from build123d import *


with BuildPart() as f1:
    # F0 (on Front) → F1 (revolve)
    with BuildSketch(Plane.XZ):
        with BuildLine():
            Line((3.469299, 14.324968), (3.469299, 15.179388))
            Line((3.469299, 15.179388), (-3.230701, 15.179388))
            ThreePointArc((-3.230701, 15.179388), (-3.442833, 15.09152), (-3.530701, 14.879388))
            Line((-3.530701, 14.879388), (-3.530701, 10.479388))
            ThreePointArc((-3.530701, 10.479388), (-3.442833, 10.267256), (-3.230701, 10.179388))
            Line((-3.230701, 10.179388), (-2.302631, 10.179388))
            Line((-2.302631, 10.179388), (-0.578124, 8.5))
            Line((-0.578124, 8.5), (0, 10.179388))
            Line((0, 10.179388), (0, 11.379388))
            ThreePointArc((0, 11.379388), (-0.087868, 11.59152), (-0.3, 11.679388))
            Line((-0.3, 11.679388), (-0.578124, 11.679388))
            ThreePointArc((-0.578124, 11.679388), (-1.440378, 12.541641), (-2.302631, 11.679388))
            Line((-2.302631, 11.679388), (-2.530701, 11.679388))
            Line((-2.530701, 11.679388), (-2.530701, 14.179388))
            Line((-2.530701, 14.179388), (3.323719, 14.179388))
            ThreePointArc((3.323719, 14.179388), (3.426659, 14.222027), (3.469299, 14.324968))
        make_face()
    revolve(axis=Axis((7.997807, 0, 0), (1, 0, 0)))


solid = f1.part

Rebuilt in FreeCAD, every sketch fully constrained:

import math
import FreeCAD as App
import Part
import Sketcher

V = App.Vector

doc = App.newDocument("Part")
body = doc.addObject("PartDesign::Body", "Body")

# Sketch on XZ plane
sketch1 = body.newObject("Sketcher::SketchObject", "Sketch")
sketch1.AttachmentSupport = (doc.getObject("XZ_Plane"), [""])
sketch1.MapMode = "FlatFace"
sketch1.addGeometry(Part.LineSegment(V(3.469299, 14.324968, 0), V(3.469299, 15.179388, 0)), False)
sketch1.addGeometry(Part.LineSegment(V(3.469299, 15.179388, 0), V(-3.230701, 15.179388, 0)), False)
sketch1.addGeometry(Part.ArcOfCircle(Part.Circle(V(-3.230701, 14.879388, 0), V(0, 0, 1), 0.3), math.radians(90.000022), math.radians(179.999978)), False)
sketch1.addGeometry(Part.LineSegment(V(-3.530701, 14.879388, 0), V(-3.530701, 10.479388, 0)), False)
sketch1.addGeometry(Part.ArcOfCircle(Part.Circle(V(-3.230701, 10.479388, 0), V(0, 0, 1), 0.3), math.radians(-179.999978), math.radians(-90.000022)), False)
sketch1.addGeometry(Part.LineSegment(V(-3.230701, 10.179388, 0), V(-2.302631, 10.179388, 0)), False)
sketch1.addGeometry(Part.LineSegment(V(-2.302631, 10.179388, 0), V(-0.578124, 8.5, 0)), False)
sketch1.addGeometry(Part.LineSegment(V(-0.578124, 8.5, 0), V(0, 10.179388, 0)), False)
sketch1.addGeometry(Part.LineSegment(V(0, 10.179388, 0), V(0, 11.379388, 0)), False)
sketch1.addGeometry(Part.ArcOfCircle(Part.Circle(V(-0.3, 11.379388, 0), V(0, 0, 1), 0.3), math.radians(0.000022), math.radians(89.999978)), False)
sketch1.addGeometry(Part.LineSegment(V(-0.3, 11.679388, 0), V(-0.578124, 11.679388, 0)), False)
sketch1.addGeometry(Part.ArcOfCircle(Part.Circle(V(-1.440378, 11.679388, 0), V(0, 0, 1), 0.862254), math.radians(0.000033), math.radians(179.999967)), False)
sketch1.addGeometry(Part.LineSegment(V(-2.302631, 11.679388, 0), V(-2.530701, 11.679388, 0)), False)
sketch1.addGeometry(Part.LineSegment(V(-2.530701, 11.679388, 0), V(-2.530701, 14.179388, 0)), False)
sketch1.addGeometry(Part.LineSegment(V(-2.530701, 14.179388, 0), V(3.323719, 14.179388, 0)), False)
sketch1.addGeometry(Part.ArcOfCircle(Part.Circle(V(3.323719, 14.324968, 0), V(0, 0, 1), 0.14558), math.radians(-89.999859), math.radians(-0.000141)), False)
sketch1.addConstraint(Sketcher.Constraint("Coincident", 0, 2, 1, 1))
sketch1.addConstraint(Sketcher.Constraint("Tangent", 1, 2, 2, 1))
sketch1.addConstraint(Sketcher.Constraint("Tangent", 2, 2, 3, 1))
sketch1.addConstraint(Sketcher.Constraint("Tangent", 3, 2, 4, 1))
sketch1.addConstraint(Sketcher.Constraint("Tangent", 4, 2, 5, 1))
sketch1.addConstraint(Sketcher.Constraint("Coincident", 5, 2, 6, 1))
sketch1.addConstraint(Sketcher.Constraint("Coincident", 6, 2, 7, 1))
sketch1.addConstraint(Sketcher.Constraint("Coincident", 7, 2, 8, 1))
sketch1.addConstraint(Sketcher.Constraint("Tangent", 8, 2, 9, 1))
sketch1.addConstraint(Sketcher.Constraint("Tangent", 9, 2, 10, 1))
sketch1.addConstraint(Sketcher.Constraint("Coincident", 10, 2, 11, 1))
sketch1.addConstraint(Sketcher.Constraint("Coincident", 11, 2, 12, 1))
sketch1.addConstraint(Sketcher.Constraint("Coincident", 12, 2, 13, 1))
sketch1.addConstraint(Sketcher.Constraint("Coincident", 13, 2, 14, 1))
sketch1.addConstraint(Sketcher.Constraint("Coincident", 14, 2, 15, 1))
sketch1.addConstraint(Sketcher.Constraint("Coincident", 15, 2, 0, 1))
sketch1.addConstraint(Sketcher.Constraint("Vertical", 0))
sketch1.addConstraint(Sketcher.Constraint("Horizontal", 1))
sketch1.addConstraint(Sketcher.Constraint("Vertical", 3))
sketch1.addConstraint(Sketcher.Constraint("Horizontal", 5))
sketch1.addConstraint(Sketcher.Constraint("Vertical", 8))
sketch1.addConstraint(Sketcher.Constraint("Horizontal", 10))
sketch1.addConstraint(Sketcher.Constraint("Horizontal", 12))
sketch1.addConstraint(Sketcher.Constraint("Vertical", 13))
sketch1.addConstraint(Sketcher.Constraint("Horizontal", 14))
sketch1.addConstraint(Sketcher.Constraint("Equal", 2, 4))
sketch1.addConstraint(Sketcher.Constraint("Equal", 4, 9))
sketch1.addConstraint(Sketcher.Constraint("PointOnObject", 7, 2, -2))
sketch1.addConstraint(Sketcher.Constraint("Horizontal", 5, 2, 7, 2))
sketch1.addConstraint(Sketcher.Constraint("Horizontal", 11, 3, 9, 2))
sketch1.addConstraint(Sketcher.Constraint("Horizontal", 10, 2, 11, 2))
sketch1.addConstraint(Sketcher.Constraint("Vertical", 6, 2, 10, 2))
sketch1.addConstraint(Sketcher.Constraint("Vertical", 5, 2, 11, 2))
sketch1.addConstraint(Sketcher.Constraint("Vertical", 15, 3, 14, 2))
sketch1.addConstraint(Sketcher.Constraint("Radius", 2, 0.3))
sketch1.addConstraint(Sketcher.Constraint("DistanceX", 1, 2, 1, 1, 6.7))
sketch1.addConstraint(Sketcher.Constraint("DistanceY", 3, 2, 3, 1, 4.4))
sketch1.addConstraint(Sketcher.Constraint("DistanceY", 8, 1, 8, 2, 1.2))
sketch1.addConstraint(Sketcher.Constraint("DistanceY", 13, 1, 13, 2, 2.5))
sketch1.addConstraint(Sketcher.Constraint("DistanceX", 3, 2, 12, 2, 1.0))
sketch1.addConstraint(Sketcher.Constraint("DistanceY", -1, 1, 6, 2, 8.5))
sketch1.addConstraint(Sketcher.Constraint("Radius", 15, 0.14558))
sketch1.addConstraint(Sketcher.Constraint("Radius", 11, 0.862254))
sketch1.addConstraint(Sketcher.Constraint("DistanceX", 5, 1, 5, 2, 0.92807))
sketch1.addConstraint(Sketcher.Constraint("DistanceY", 0, 1, 0, 2, 0.85442))
sketch1.addConstraint(Sketcher.Constraint("DistanceX", 2, 3, -1, 1, 3.230701))
sketch1.addConstraint(Sketcher.Constraint("Distance", 6, 2.407129))
revolution = body.newObject("PartDesign::Revolution", "Revolution")
revolution.Profile = sketch1
revolution.ReferenceAxis = (sketch1, ["H_Axis"])
revolution.Angle = 360

doc.recompute()
